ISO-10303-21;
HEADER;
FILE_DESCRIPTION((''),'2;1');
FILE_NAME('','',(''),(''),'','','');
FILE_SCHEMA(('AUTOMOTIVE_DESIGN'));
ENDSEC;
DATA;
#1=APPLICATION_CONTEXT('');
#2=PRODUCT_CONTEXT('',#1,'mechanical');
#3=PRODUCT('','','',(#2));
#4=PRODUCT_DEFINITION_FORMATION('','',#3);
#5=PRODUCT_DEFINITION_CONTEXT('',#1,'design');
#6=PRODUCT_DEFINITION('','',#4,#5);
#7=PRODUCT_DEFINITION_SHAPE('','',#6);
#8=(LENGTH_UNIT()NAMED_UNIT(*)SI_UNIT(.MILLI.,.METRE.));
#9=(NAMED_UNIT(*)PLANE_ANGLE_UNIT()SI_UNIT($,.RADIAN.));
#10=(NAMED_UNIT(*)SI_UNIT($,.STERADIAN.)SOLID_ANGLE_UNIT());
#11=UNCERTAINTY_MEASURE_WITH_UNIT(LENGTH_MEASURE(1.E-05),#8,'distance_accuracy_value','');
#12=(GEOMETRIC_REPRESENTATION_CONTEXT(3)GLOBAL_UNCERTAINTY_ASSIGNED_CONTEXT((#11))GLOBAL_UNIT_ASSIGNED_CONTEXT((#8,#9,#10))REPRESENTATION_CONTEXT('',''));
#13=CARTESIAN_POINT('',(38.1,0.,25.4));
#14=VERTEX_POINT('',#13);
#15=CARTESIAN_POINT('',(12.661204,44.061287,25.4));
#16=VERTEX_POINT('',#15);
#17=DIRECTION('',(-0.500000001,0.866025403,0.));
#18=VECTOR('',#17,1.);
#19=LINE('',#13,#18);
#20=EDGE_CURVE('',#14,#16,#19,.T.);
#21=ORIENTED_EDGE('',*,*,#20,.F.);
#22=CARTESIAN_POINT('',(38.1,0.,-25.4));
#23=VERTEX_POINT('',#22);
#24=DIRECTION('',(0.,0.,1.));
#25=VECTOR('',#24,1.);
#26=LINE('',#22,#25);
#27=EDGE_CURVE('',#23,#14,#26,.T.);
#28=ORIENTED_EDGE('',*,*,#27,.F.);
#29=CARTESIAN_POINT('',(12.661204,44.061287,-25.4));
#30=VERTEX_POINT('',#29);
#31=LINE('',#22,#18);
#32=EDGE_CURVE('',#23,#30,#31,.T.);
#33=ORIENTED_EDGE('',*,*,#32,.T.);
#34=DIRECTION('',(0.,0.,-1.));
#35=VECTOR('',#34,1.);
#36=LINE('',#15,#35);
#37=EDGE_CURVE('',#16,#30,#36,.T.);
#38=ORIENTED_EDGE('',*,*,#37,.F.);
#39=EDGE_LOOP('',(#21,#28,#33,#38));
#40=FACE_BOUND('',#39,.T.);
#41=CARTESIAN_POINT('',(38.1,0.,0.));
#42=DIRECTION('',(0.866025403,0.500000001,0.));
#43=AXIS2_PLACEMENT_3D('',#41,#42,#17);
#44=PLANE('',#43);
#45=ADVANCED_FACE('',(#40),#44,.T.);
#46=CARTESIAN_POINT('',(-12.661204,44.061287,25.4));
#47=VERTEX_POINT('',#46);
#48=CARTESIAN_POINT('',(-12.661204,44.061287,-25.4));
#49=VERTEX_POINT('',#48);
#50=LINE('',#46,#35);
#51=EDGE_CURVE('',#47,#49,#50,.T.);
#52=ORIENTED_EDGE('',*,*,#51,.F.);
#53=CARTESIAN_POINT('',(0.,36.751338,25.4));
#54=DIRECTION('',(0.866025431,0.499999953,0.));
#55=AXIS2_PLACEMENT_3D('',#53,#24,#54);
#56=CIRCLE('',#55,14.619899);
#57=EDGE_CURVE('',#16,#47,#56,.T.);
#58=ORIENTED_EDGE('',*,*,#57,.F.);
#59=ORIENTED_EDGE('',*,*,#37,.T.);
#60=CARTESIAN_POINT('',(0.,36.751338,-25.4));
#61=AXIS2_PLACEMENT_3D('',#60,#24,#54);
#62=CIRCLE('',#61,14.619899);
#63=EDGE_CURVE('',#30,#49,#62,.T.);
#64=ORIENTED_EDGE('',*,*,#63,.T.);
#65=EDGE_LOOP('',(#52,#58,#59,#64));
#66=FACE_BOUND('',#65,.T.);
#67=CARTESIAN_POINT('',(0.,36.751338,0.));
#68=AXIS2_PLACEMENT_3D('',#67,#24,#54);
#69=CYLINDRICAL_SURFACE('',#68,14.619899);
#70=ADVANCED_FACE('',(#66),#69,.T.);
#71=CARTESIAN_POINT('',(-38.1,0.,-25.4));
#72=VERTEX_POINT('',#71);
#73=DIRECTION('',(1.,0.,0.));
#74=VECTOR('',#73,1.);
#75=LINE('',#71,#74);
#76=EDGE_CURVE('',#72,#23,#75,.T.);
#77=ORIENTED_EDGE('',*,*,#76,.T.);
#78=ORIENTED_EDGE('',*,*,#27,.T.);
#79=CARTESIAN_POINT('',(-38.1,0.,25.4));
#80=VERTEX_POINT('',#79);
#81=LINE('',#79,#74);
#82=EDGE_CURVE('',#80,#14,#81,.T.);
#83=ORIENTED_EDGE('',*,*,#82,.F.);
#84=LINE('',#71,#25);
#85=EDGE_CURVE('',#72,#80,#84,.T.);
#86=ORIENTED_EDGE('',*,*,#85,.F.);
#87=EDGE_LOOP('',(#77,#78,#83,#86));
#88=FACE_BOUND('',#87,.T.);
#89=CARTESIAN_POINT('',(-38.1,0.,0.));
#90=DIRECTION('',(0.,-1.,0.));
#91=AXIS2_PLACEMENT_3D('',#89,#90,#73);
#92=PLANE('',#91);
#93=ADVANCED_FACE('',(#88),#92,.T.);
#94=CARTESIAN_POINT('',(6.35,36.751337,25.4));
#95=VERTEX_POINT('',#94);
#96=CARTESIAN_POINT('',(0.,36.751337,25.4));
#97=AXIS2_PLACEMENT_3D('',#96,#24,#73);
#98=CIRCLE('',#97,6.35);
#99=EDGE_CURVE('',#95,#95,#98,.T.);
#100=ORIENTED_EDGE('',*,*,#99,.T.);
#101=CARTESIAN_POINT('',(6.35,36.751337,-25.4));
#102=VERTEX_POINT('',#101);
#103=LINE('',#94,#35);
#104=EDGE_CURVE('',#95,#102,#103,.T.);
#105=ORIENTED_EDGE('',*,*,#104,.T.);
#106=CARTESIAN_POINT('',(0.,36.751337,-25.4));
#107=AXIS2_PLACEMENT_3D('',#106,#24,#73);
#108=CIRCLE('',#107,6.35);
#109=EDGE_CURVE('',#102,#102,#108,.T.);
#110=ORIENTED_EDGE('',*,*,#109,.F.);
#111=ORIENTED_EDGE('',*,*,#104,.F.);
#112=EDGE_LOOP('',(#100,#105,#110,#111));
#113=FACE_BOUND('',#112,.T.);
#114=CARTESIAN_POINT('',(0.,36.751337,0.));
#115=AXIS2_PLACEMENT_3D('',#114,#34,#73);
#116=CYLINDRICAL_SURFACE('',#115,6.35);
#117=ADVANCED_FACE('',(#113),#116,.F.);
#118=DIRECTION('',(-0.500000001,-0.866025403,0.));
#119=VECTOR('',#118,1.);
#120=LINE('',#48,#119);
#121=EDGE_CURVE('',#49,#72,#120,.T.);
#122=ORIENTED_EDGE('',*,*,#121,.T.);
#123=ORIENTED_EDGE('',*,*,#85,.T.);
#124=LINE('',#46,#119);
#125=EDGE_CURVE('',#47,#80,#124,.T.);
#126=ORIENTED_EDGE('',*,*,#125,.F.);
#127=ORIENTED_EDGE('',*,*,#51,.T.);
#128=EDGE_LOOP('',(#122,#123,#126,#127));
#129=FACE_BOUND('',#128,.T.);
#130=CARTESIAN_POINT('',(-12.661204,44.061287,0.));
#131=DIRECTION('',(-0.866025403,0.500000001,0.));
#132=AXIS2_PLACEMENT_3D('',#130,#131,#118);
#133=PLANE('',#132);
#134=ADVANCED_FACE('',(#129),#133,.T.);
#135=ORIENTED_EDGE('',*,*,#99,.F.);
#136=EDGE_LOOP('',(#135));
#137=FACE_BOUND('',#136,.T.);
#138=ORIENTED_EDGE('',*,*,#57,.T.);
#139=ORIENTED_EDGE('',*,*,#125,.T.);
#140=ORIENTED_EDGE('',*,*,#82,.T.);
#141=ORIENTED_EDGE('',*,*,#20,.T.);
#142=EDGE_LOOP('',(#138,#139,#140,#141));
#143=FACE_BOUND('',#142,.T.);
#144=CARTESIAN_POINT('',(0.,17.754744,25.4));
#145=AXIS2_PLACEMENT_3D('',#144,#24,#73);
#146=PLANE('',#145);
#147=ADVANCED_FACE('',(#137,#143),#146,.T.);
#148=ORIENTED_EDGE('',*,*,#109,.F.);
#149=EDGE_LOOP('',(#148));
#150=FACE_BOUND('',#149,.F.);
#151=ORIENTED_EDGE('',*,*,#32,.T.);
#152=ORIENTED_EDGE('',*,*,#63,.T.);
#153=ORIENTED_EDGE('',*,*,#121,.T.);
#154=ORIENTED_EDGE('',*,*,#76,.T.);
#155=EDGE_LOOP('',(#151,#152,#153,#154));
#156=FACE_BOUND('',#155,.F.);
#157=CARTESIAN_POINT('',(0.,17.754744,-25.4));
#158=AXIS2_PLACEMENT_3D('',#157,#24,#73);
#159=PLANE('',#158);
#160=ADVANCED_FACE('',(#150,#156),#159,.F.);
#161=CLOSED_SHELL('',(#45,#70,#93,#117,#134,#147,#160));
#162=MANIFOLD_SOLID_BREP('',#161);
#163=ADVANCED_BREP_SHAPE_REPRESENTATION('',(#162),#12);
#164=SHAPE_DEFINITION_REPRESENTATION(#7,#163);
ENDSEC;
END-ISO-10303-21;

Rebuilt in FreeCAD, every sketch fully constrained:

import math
import FreeCAD as App
import Part
import Sketcher

V = App.Vector
Q = App.Units.Quantity

doc = App.newDocument("Part")
body = doc.addObject("PartDesign::Body", "Body")

# Sketch on XY plane
sketch1 = body.newObject("Sketcher::SketchObject", "Sketch")
sketch1.AttachmentSupport = (doc.getObject("XY_Plane"), [""])
sketch1.MapMode = "FlatFace"
sketch1.addGeometry(Part.LineSegment(V(-13, 44, 0), V(-38, 0, 0)), False)
sketch1.addGeometry(Part.LineSegment(V(-38, 0, 0), V(38, 0, 0)), False)
sketch1.addGeometry(Part.LineSegment(V(38, 0, 0), V(13, 44, 0)), False)
sketch1.addGeometry(Part.ArcOfCircle(Part.Circle(V(0, 37, 0), V(0, 0, 1), 15), math.radians(30), math.radians(150)), False)
sketch1.addGeometry(Part.Circle(V(0, 37, 0), V(0, 0, 1), 6), False)
sketch1.addConstraint(Sketcher.Constraint("Coincident", 0, 2, 1, 1))
sketch1.addConstraint(Sketcher.Constraint("Coincident", 1, 2, 2, 1))
sketch1.addConstraint(Sketcher.Constraint("Tangent", 2, 2, 3, 1))
sketch1.addConstraint(Sketcher.Constraint("Tangent", 3, 2, 0, 1))
sketch1.addConstraint(Sketcher.Constraint("Horizontal", 1))
sketch1.addConstraint(Sketcher.Constraint("Coincident", 4, 3, 3, 3))
sketch1.addConstraint(Sketcher.Constraint("Symmetric", 0, 2, 1, 2, -1, 1))
sketch1.addConstraint(Sketcher.Constraint("PointOnObject", 3, 3, -2))
sketch1.addConstraint(Sketcher.Constraint("Diameter", 4, Q("0.5 in")))
sketch1.addConstraint(Sketcher.Constraint("DistanceX", 1, 1, 1, 2, Q("3 in")))
sketch1.addConstraint(Sketcher.Constraint("Angle", 0, Q("-120 deg")))
sketch1.addConstraint(Sketcher.Constraint("Radius", 3, Q("14.619899 mm")))
pad1 = body.newObject("PartDesign::Pad", "Pad")
pad1.Profile = sketch1
pad1.Length = Q("2 in")
pad1.Midplane = True

doc.recompute()
